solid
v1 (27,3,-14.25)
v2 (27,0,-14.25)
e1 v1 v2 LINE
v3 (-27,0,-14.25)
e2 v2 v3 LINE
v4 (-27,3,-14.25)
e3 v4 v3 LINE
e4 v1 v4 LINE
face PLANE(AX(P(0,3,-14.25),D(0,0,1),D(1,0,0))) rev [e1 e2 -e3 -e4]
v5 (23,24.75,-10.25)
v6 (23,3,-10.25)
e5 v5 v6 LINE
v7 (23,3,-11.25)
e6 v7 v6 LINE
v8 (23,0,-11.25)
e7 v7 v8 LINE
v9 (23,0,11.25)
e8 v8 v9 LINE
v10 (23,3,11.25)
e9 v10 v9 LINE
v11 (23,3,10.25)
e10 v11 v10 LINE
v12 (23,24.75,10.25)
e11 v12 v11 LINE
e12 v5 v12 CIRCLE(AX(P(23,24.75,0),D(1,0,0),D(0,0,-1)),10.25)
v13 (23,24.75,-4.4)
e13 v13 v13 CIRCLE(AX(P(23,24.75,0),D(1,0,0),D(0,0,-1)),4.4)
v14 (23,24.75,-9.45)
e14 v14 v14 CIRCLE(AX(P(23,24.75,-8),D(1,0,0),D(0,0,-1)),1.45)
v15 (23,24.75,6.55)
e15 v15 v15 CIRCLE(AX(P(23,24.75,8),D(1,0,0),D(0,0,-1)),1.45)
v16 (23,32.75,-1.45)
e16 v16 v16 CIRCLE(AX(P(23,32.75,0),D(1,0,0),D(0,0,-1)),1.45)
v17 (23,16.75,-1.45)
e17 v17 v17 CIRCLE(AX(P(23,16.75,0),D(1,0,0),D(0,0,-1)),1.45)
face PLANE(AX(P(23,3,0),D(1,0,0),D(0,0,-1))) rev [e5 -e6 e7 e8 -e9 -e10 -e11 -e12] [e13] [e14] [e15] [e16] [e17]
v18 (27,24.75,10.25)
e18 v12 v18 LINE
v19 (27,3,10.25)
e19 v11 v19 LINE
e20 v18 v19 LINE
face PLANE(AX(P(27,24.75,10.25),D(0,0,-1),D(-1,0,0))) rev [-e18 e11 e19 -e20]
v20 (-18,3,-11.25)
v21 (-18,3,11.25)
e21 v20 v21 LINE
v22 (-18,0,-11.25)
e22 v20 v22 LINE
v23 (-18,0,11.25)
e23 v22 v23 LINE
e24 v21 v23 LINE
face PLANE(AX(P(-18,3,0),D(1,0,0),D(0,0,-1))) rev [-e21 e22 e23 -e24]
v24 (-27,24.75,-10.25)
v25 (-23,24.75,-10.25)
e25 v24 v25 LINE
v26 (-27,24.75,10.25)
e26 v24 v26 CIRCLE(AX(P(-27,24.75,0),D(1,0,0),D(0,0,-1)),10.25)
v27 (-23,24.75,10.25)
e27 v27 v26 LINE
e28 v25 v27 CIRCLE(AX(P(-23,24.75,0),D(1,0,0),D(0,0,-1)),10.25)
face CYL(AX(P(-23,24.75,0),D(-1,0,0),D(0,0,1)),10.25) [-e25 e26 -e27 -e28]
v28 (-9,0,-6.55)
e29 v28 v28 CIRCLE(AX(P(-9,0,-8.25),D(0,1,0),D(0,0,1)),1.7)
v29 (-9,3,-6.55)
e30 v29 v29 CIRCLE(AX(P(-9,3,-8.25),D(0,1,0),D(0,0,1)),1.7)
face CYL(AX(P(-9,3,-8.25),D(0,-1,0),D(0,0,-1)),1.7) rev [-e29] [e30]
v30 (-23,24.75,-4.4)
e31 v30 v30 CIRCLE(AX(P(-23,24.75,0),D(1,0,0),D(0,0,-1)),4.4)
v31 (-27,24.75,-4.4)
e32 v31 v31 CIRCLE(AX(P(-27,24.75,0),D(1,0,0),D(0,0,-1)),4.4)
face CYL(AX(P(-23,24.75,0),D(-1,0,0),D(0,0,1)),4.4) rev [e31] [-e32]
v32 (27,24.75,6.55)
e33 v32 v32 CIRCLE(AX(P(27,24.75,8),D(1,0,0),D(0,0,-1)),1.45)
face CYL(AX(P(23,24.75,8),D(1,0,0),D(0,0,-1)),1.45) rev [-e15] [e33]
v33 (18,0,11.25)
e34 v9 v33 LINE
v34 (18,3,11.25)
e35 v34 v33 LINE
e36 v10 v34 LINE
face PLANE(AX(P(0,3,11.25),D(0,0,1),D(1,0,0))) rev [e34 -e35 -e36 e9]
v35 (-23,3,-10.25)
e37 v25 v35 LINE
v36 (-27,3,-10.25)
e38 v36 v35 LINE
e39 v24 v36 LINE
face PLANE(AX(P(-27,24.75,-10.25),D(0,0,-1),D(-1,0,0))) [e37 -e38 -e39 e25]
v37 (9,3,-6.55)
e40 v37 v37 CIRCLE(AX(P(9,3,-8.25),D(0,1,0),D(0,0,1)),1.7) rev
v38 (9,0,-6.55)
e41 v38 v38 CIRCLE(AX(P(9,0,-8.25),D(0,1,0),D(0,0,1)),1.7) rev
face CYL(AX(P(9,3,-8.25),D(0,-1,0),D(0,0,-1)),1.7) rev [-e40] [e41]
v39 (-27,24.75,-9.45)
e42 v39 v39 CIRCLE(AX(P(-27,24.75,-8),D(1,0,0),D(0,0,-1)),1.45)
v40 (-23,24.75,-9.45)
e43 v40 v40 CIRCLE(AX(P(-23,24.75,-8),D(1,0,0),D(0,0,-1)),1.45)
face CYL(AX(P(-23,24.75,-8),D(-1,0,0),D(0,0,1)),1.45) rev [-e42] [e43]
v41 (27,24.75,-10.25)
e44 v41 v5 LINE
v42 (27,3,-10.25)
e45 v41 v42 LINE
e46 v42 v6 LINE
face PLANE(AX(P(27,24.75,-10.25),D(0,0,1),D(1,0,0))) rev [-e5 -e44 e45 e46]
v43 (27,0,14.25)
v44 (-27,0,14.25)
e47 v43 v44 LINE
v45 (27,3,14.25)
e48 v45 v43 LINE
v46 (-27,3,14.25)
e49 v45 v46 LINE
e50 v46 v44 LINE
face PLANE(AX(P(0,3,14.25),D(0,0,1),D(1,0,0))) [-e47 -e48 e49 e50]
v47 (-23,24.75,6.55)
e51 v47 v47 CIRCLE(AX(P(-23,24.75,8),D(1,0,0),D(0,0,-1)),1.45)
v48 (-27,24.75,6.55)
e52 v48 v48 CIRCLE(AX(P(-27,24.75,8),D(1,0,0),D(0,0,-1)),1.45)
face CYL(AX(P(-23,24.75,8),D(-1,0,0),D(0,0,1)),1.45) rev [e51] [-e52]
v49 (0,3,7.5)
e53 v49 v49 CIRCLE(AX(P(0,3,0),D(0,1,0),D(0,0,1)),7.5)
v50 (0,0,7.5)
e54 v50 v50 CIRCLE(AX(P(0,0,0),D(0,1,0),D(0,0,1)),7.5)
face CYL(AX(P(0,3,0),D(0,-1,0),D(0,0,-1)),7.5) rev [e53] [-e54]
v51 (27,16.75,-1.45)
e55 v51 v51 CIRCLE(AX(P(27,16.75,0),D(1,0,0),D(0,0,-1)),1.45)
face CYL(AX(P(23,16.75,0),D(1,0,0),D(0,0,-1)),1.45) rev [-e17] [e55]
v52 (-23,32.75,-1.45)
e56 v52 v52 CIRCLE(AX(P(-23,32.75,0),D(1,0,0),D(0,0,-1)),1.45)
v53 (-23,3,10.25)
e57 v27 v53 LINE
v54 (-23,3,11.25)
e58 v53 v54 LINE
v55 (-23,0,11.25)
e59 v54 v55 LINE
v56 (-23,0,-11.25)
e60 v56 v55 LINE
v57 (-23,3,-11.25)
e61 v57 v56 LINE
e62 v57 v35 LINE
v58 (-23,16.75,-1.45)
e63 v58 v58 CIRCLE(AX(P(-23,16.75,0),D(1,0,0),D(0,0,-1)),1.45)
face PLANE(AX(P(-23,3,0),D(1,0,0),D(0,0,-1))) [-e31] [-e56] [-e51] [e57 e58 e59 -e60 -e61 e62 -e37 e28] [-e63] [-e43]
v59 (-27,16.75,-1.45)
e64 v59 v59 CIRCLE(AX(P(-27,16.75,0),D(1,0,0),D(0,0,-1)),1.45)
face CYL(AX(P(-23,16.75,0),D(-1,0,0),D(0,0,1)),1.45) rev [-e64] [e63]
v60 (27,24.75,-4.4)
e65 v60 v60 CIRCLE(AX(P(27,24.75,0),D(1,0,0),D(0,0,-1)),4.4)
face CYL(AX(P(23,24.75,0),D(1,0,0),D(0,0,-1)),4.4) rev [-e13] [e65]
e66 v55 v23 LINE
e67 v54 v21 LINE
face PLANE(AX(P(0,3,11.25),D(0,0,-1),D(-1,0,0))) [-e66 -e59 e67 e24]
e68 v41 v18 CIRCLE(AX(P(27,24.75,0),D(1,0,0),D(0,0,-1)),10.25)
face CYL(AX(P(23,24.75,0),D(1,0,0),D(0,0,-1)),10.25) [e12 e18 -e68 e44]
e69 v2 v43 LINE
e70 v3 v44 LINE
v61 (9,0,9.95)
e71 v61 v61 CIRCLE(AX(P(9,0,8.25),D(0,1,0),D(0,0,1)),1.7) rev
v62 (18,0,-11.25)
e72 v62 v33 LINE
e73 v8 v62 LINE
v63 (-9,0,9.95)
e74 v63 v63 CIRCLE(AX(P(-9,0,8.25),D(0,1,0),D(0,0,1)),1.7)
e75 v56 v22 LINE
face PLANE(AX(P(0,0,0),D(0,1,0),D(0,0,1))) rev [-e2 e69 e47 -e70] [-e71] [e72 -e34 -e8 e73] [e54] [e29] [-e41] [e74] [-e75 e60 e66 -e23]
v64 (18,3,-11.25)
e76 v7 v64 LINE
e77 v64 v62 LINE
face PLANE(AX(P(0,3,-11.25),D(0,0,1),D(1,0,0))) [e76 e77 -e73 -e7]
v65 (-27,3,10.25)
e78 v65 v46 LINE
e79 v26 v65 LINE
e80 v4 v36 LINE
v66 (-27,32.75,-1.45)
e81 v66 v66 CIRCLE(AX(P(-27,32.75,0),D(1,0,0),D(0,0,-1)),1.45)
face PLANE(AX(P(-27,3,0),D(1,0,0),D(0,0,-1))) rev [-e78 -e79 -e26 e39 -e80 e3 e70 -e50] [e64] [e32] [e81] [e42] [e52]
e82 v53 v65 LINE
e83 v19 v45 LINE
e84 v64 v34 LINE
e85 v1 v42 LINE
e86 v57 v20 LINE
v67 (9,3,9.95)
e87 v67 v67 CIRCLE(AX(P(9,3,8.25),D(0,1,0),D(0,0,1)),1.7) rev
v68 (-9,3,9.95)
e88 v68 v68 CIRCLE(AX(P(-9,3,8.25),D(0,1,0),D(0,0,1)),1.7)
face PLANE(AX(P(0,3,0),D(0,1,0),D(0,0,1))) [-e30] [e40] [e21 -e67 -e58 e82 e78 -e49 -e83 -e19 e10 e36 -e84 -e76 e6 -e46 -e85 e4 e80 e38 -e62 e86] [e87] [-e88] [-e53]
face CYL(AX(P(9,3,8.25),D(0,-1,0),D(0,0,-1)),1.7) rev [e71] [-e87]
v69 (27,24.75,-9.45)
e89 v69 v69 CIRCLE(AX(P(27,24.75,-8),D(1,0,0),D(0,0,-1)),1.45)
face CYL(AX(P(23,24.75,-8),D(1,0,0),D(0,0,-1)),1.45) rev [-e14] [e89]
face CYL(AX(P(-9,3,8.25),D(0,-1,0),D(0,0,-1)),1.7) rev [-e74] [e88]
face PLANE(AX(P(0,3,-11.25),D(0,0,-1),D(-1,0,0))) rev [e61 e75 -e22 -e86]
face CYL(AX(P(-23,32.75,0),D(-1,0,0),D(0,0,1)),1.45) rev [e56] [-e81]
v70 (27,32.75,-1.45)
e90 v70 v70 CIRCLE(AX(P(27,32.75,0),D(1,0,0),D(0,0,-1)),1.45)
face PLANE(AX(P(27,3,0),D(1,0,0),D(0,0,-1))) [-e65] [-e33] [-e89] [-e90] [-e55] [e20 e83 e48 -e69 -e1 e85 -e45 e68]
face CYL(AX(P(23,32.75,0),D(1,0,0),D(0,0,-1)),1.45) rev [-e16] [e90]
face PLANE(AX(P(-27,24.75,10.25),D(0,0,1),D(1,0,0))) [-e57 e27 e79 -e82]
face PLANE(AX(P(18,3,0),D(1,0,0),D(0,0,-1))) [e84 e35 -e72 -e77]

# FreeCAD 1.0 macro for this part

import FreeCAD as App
import Part
import Sketcher
from FreeCAD import Vector

doc = App.newDocument("Part")
body = doc.addObject("PartDesign::Body", "Body")

# Sketch on XZ plane
sketch1 = body.newObject("Sketcher::SketchObject", "Sketch")
sketch1.AttachmentSupport = (doc.getObject("XZ_Plane"), [""])
sketch1.MapMode = "FlatFace"
sketch1.addGeometry([
    Part.LineSegment(Vector(-27, -14.2, 0), Vector(-27, 14.2, 0)),  # 0
    Part.LineSegment(Vector(-27, 14.2, 0), Vector(27, 14.2, 0)),  # 1
    Part.LineSegment(Vector(27, 14.2, 0), Vector(27, -14.2, 0)),  # 2
    Part.LineSegment(Vector(27, -14.2, 0), Vector(-27, -14.2, 0)),  # 3
    Part.Circle(Vector(-9, 8.2, 0), Vector(0, 0, 1), 1.7),  # 4
    Part.Circle(Vector(9, 8.2, 0), Vector(0, 0, 1), 1.7),  # 5
    Part.LineSegment(Vector(-18, 11.2, 0), Vector(-23, 11.2, 0)),  # 6
    Part.LineSegment(Vector(-23, 11.2, 0), Vector(-23, -11.2, 0)),  # 7
    Part.LineSegment(Vector(-23, -11.2, 0), Vector(-18, -11.2, 0)),  # 8
    Part.LineSegment(Vector(-18, -11.2, 0), Vector(-18, 11.2, 0)),  # 9
    Part.Circle(Vector(-9, -8.2, 0), Vector(0, 0, 1), 1.7),  # 10
    Part.Circle(Vector(0, 0, 0), Vector(0, 0, 1), 7.5),  # 11
    Part.LineSegment(Vector(23, 11.2, 0), Vector(18, 11.2, 0)),  # 12
    Part.LineSegment(Vector(18, 11.2, 0), Vector(18, -11.2, 0)),  # 13
    Part.LineSegment(Vector(18, -11.2, 0), Vector(23, -11.2, 0)),  # 14
    Part.LineSegment(Vector(23, -11.2, 0), Vector(23, 11.2, 0)),  # 15
    Part.Circle(Vector(9, -8.2, 0), Vector(0, 0, 1), 1.7),  # 16
], False)
sketch1.addConstraint([
    Sketcher.Constraint("Coincident", 0, 2, 1, 1),
    Sketcher.Constraint("Coincident", 1, 2, 2, 1),
    Sketcher.Constraint("Coincident", 2, 2, 3, 1),
    Sketcher.Constraint("Coincident", 3, 2, 0, 1),
    Sketcher.Constraint("Coincident", 6, 2, 7, 1),
    Sketcher.Constraint("Coincident", 7, 2, 8, 1),
    Sketcher.Constraint("Coincident", 8, 2, 9, 1),
    Sketcher.Constraint("Coincident", 9, 2, 6, 1),
    Sketcher.Constraint("Coincident", 12, 2, 13, 1),
    Sketcher.Constraint("Coincident", 13, 2, 14, 1),
    Sketcher.Constraint("Coincident", 14, 2, 15, 1),
    Sketcher.Constraint("Coincident", 15, 2, 12, 1),
    Sketcher.Constraint("Vertical", 0),
    Sketcher.Constraint("Horizontal", 1),
    Sketcher.Constraint("Vertical", 2),
    Sketcher.Constraint("Horizontal", 3),
    Sketcher.Constraint("Horizontal", 6),
    Sketcher.Constraint("Vertical", 7),
    Sketcher.Constraint("Horizontal", 8),
    Sketcher.Constraint("Vertical", 9),
    Sketcher.Constraint("Horizontal", 12),
    Sketcher.Constraint("Vertical", 13),
    Sketcher.Constraint("Horizontal", 14),
    Sketcher.Constraint("Vertical", 15),
    Sketcher.Constraint("Coincident", 11, 3, -1, 1),
    Sketcher.Constraint("Equal", 4, 5),
    Sketcher.Constraint("Equal", 5, 10),
    Sketcher.Constraint("Equal", 10, 16),
    Sketcher.Constraint("Symmetric", 5, 3, 10, 3, -1, 1),
    Sketcher.Constraint("Symmetric", 4, 3, 16, 3, -1, 1),
    Sketcher.Constraint("Symmetric", 0, 2, 2, 2, -1, 1),
    Sketcher.Constraint("Symmetric", 8, 2, 12, 2, -1, 1),
    Sketcher.Constraint("Symmetric", 6, 2, 14, 2, -1, 1),
    Sketcher.Constraint("Symmetric", 4, 3, 5, 3, -2),
    Sketcher.Constraint("Horizontal", 9, 2, 12, 2),
    Sketcher.Constraint("Diameter", 11, 15.0),
    Sketcher.Constraint("Diameter", 4, 3.4),
    Sketcher.Constraint("DistanceX", 1, 1, 1, 2, 54.0),
    Sketcher.Constraint("DistanceX", 6, 2, 6, 1, 5.0),
    Sketcher.Constraint("DistanceY", 0, 1, 0, 2, 28.5),
    Sketcher.Constraint("DistanceY", 7, 2, 7, 1, 22.5),
    Sketcher.Constraint("DistanceX", 4, 3, -1, 1, 9.0),
    Sketcher.Constraint("DistanceX", 6, 2, -1, 1, 23.0),
    Sketcher.Constraint("DistanceY", 4, 3, 0, 2, 6.0),
])
pad1 = body.newObject("PartDesign::Pad", "Pad")
pad1.Profile = sketch1
pad1.Length = 3
pad1.Reversed = True

# Sketch on XZ plane
sketch2 = body.newObject("Sketcher::SketchObject", "Sketch001")
sketch2.AttachmentSupport = (doc.getObject("XZ_Plane"), [""])
sketch2.MapMode = "FlatFace"
sketch2.AttachmentOffset = App.Placement(Vector(0, 0, -3), App.Rotation())
sketch2.addGeometry([
    Part.LineSegment(Vector(23, -10.2, 0), Vector(23, 10.2, 0)),
    Part.LineSegment(Vector(23, 10.2, 0), Vector(27, 10.2, 0)),
    Part.LineSegment(Vector(27, 10.2, 0), Vector(27, -10.2, 0)),
    Part.LineSegment(Vector(27, -10.2, 0), Vector(23, -10.2, 0)),
], False)
sketch2.addConstraint([
    Sketcher.Constraint("Coincident", 0, 2, 1, 1),
    Sketcher.Constraint("Coincident", 1, 2, 2, 1),
    Sketcher.Constraint("Coincident", 2, 2, 3, 1),
    Sketcher.Constraint("Coincident", 3, 2, 0, 1),
    Sketcher.Constraint("Vertical", 0),
    Sketcher.Constraint("Horizontal", 1),
    Sketcher.Constraint("Vertical", 2),
    Sketcher.Constraint("Horizontal", 3),
    Sketcher.Constraint("DistanceX", 1, 1, 1, 2, 4.0),
    Sketcher.Constraint("DistanceY", 0, 1, 0, 2, 20.5),
    Sketcher.Constraint("DistanceX", -1, 1, 0, 2, 23.0),
    Sketcher.Constraint("DistanceY", -1, 1, 0, 2, 10.25),
])
pad2 = body.newObject("PartDesign::Pad", "Pad001")
pad2.Profile = sketch2
pad2.Length = 21.75
pad2.Reversed = True

# Sketch on YZ plane
sketch3 = body.newObject("Sketcher::SketchObject", "Sketch002")
sketch3.AttachmentSupport = (doc.getObject("YZ_Plane"), [""])
sketch3.MapMode = "FlatFace"
sketch3.AttachmentOffset = App.Placement(Vector(0, 0, 27), App.Rotation())
sketch3.addGeometry(Part.Circle(Vector(25, 0, 0), Vector(0, 0, 1), 10), False)
sketch3.addConstraint([
    Sketcher.Constraint("PointOnObject", 0, 3, -1),
    Sketcher.Constraint("Diameter", 0, 20.5),
    Sketcher.Constraint("DistanceX", -1, 1, 0, 3, 24.75),
])
pad3 = body.newObject("PartDesign::Pad", "Pad002")
pad3.Profile = sketch3
pad3.Length = 4
pad3.Reversed = True
doc.recompute()

mirrored = body.newObject("PartDesign::Mirrored", "Mirrored")
mirrored.Originals = [pad2, pad3]
mirrored.MirrorPlane = (doc.getObject("YZ_Plane"), [""])
body.Tip = mirrored

# Sketch on YZ plane
sketch4 = body.newObject("Sketcher::SketchObject", "Sketch003")
sketch4.AttachmentSupport = (doc.getObject("YZ_Plane"), [""])
sketch4.MapMode = "FlatFace"
sketch4.AttachmentOffset = App.Placement(Vector(0, 0, 27), App.Rotation())
sketch4.addGeometry([
    Part.Circle(Vector(24.8, 0, 0), Vector(0, 0, 1), 4.4),  # 0
    Part.Circle(Vector(32.8, 0, 0), Vector(0, 0, 1), 1.4),  # 1
    Part.Circle(Vector(24.8, -8, 0), Vector(0, 0, 1), 1.4),  # 2
    Part.Circle(Vector(16.8, 0, 0), Vector(0, 0, 1), 1.4),  # 3
    Part.Circle(Vector(24.8, 8, 0), Vector(0, 0, 1), 1.4),  # 4
], False)
sketch4.addConstraint([
    Sketcher.Constraint("Equal", 1, 2),
    Sketcher.Constraint("Equal", 2, 3),
    Sketcher.Constraint("Equal", 3, 4),
    Sketcher.Constraint("Symmetric", 2, 3, 4, 3, -1),
    Sketcher.Constraint("PointOnObject", 0, 3, -1),
    Sketcher.Constraint("PointOnObject", 1, 3, -1),
    Sketcher.Constraint("PointOnObject", 3, 3, -1),
    Sketcher.Constraint("Vertical", 0, 3, 2, 3),
    Sketcher.Constraint("Diameter", 0, 8.8),
    Sketcher.Constraint("Diameter", 1, 2.9),
    Sketcher.Constraint("DistanceY", 2, 3, -1, 1, 8.0),
    Sketcher.Constraint("DistanceX", 0, 3, 1, 3, 8.0),
    Sketcher.Constraint("DistanceX", 3, 3, 0, 3, 8.0),
    Sketcher.Constraint("DistanceX", -1, 1, 0, 3, 24.75),
])
pocket1 = body.newObject("PartDesign::Pocket", "Pocket")
pocket1.Profile = sketch4
pocket1.Length = 4
doc.recompute()

mirrored2 = body.newObject("PartDesign::Mirrored", "Mirrored001")
mirrored2.Originals = [pocket1]
mirrored2.MirrorPlane = (doc.getObject("YZ_Plane"), [""])
body.Tip = mirrored2

doc.recompute()
